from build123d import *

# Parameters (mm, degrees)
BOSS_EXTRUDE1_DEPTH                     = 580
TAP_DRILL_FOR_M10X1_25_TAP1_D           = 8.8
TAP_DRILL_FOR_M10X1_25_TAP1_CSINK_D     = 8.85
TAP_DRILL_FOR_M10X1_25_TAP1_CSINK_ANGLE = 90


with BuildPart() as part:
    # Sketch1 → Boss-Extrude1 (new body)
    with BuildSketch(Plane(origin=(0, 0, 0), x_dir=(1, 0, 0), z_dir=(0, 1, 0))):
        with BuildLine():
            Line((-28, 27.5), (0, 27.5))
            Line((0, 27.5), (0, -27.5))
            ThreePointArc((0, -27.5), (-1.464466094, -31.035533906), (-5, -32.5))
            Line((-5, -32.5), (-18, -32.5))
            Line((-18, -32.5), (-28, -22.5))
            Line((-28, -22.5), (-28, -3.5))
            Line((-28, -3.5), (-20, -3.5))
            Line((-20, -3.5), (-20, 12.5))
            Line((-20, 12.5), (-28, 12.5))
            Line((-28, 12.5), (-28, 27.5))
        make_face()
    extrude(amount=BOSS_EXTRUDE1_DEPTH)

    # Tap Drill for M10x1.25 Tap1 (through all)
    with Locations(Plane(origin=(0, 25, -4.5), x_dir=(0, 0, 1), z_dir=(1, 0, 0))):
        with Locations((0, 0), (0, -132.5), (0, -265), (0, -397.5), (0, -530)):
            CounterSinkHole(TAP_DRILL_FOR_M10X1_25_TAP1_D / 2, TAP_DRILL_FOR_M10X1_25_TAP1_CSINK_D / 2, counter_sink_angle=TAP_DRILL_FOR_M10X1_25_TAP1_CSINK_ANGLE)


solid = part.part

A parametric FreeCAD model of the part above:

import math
import FreeCAD as App
import Part
import Sketcher
from FreeCAD import Vector
Q = App.Units.Quantity

doc = App.newDocument("Part")
params = doc.addObject("Spreadsheet::Sheet", "Params")
for row, (alias, value) in enumerate([
    ("sketch1_radius", "5 mm"),
    ("sketch1_width", "28 mm"),
    ("sketch1_width2", "8 mm"),
    ("sketch1_width3", "13 mm"),
    ("sketch1_height", "15 mm"),
    ("pad1_length", "580 mm"),
    ("sketch2_diameter", "8.8 mm"),
    ("hole_diameter", "8.8 mm"),
    ("hole_csink_diameter", "8.85 mm"),
], start=1):
    params.set(f"A{row}", alias)
    params.set(f"B{row}", "=" + value)
    params.setAlias(f"B{row}", alias)

body = doc.addObject("PartDesign::Body", "Body")

# Sketch on XZ plane
sketch1 = body.newObject("Sketcher::SketchObject", "Sketch")
sketch1.AttachmentSupport = (doc.getObject("XZ_Plane"), [""])
sketch1.MapMode = "FlatFace"
sketch1.addGeometry(Part.LineSegment(Vector(0, -28, 0), Vector(-28, -28, 0)), False)
sketch1.addGeometry(Part.LineSegment(Vector(-28, -28, 0), Vector(-28, -12, 0)), False)
sketch1.addGeometry(Part.LineSegment(Vector(-28, -12, 0), Vector(-20, -12, 0)), False)
sketch1.addGeometry(Part.LineSegment(Vector(-20, -12, 0), Vector(-20, 4, 0)), False)
sketch1.addGeometry(Part.LineSegment(Vector(-20, 4, 0), Vector(-28, 4, 0)), False)
sketch1.addGeometry(Part.LineSegment(Vector(-28, 4, 0), Vector(-28, 22, 0)), False)
sketch1.addGeometry(Part.LineSegment(Vector(-28, 22, 0), Vector(-18, 32, 0)), False)
sketch1.addGeometry(Part.LineSegment(Vector(-18, 32, 0), Vector(-5, 32, 0)), False)
sketch1.addGeometry(Part.ArcOfCircle(Part.Circle(Vector(-5, 28, 0), Vector(0, 0, 1), 5), math.radians(0), math.radians(90)), False)
sketch1.addGeometry(Part.LineSegment(Vector(0, 28, 0), Vector(0, -28, 0)), False)
sketch1.addConstraint(Sketcher.Constraint("Coincident", 0, 2, 1, 1))
sketch1.addConstraint(Sketcher.Constraint("Coincident", 1, 2, 2, 1))
sketch1.addConstraint(Sketcher.Constraint("Coincident", 2, 2, 3, 1))
sketch1.addConstraint(Sketcher.Constraint("Coincident", 3, 2, 4, 1))
sketch1.addConstraint(Sketcher.Constraint("Coincident", 4, 2, 5, 1))
sketch1.addConstraint(Sketcher.Constraint("Coincident", 5, 2, 6, 1))
sketch1.addConstraint(Sketcher.Constraint("Coincident", 6, 2, 7, 1))
sketch1.addConstraint(Sketcher.Constraint("Tangent", 7, 2, 8, 2))
sketch1.addConstraint(Sketcher.Constraint("Tangent", 8, 1, 9, 1))
sketch1.addConstraint(Sketcher.Constraint("Coincident", 9, 2, 0, 1))
sketch1.addConstraint(Sketcher.Constraint("Horizontal", 0))
sketch1.addConstraint(Sketcher.Constraint("Vertical", 1))
sketch1.addConstraint(Sketcher.Constraint("Horizontal", 2))
sketch1.addConstraint(Sketcher.Constraint("Vertical", 3))
sketch1.addConstraint(Sketcher.Constraint("Horizontal", 4))
sketch1.addConstraint(Sketcher.Constraint("Vertical", 5))
sketch1.addConstraint(Sketcher.Constraint("Horizontal", 7))
sketch1.addConstraint(Sketcher.Constraint("Vertical", 9))
sketch1.addConstraint(Sketcher.Constraint("Symmetric", 8, 1, 9, 2, -1, 1))
sketch1.addConstraint(Sketcher.Constraint("Vertical", 1, 2, 4, 2))
sketch1.addConstraint(Sketcher.Constraint("Radius", 8, Q("5 mm")))
sketch1.addConstraint(Sketcher.Constraint("DistanceX", 0, 2, 0, 1, Q("28 mm")))
sketch1.addConstraint(Sketcher.Constraint("DistanceX", 2, 1, 2, 2, Q("8 mm")))
sketch1.addConstraint(Sketcher.Constraint("DistanceX", 7, 1, 7, 2, Q("13 mm")))
sketch1.addConstraint(Sketcher.Constraint("DistanceY", 1, 1, 1, 2, Q("15 mm")))
sketch1.addConstraint(Sketcher.Constraint("DistanceY", 3, 1, 3, 2, Q("16 mm")))
sketch1.addConstraint(Sketcher.Constraint("DistanceY", 5, 1, 5, 2, Q("19 mm")))
sketch1.addConstraint(Sketcher.Constraint("DistanceY", 9, 2, 9, 1, Q("55 mm")))
sketch1.setExpression("Constraints[20]", "Params.sketch1_radius")
sketch1.setExpression("Constraints[21]", "Params.sketch1_width")
sketch1.setExpression("Constraints[22]", "Params.sketch1_width2")
sketch1.setExpression("Constraints[23]", "Params.sketch1_width3")
sketch1.setExpression("Constraints[24]", "Params.sketch1_height")
pad1 = body.newObject("PartDesign::Pad", "Pad")
pad1.Profile = sketch1
pad1.setExpression("Length", "Params.pad1_length")
pad1.Reversed = True

# Sketch on YZ plane
sketch2 = body.newObject("Sketcher::SketchObject", "Sketch001")
sketch2.AttachmentSupport = (doc.getObject("YZ_Plane"), [""])
sketch2.MapMode = "FlatFace"
sketch2.addGeometry(Part.Circle(Vector(25, -4.5, 0), Vector(0, 0, 1), 4.4), False)
sketch2.addGeometry(Part.Circle(Vector(157.5, -4.5, 0), Vector(0, 0, 1), 4.4), False)
sketch2.addGeometry(Part.Circle(Vector(290, -4.5, 0), Vector(0, 0, 1), 4.4), False)
sketch2.addGeometry(Part.Circle(Vector(422.5, -4.5, 0), Vector(0, 0, 1), 4.4), False)
sketch2.addGeometry(Part.Circle(Vector(555, -4.5, 0), Vector(0, 0, 1), 4.4), False)
sketch2.addConstraint(Sketcher.Constraint("Equal", 0, 1))
sketch2.addConstraint(Sketcher.Constraint("Equal", 1, 2))
sketch2.addConstraint(Sketcher.Constraint("Equal", 2, 3))
sketch2.addConstraint(Sketcher.Constraint("Equal", 3, 4))
sketch2.addConstraint(Sketcher.Constraint("Horizontal", 0, 3, 1, 3))
sketch2.addConstraint(Sketcher.Constraint("Horizontal", 1, 3, 2, 3))
sketch2.addConstraint(Sketcher.Constraint("Horizontal", 2, 3, 3, 3))
sketch2.addConstraint(Sketcher.Constraint("Horizontal", 3, 3, 4, 3))
sketch2.addConstraint(Sketcher.Constraint("Diameter", 0, Q("8.8 mm")))
sketch2.addConstraint(Sketcher.Constraint("DistanceX", -1, 1, 0, 3, Q("25 mm")))
sketch2.addConstraint(Sketcher.Constraint("DistanceX", -1, 1, 2, 3, Q("290 mm")))
sketch2.addConstraint(Sketcher.Constraint("DistanceX", -1, 1, 4, 3, Q("555 mm")))
sketch2.addConstraint(Sketcher.Constraint("DistanceX", 1, 3, 3, 3, Q("265 mm")))
sketch2.addConstraint(Sketcher.Constraint("DistanceY", 0, 3, -1, 1, Q("4.5 mm")))
sketch2.addConstraint(Sketcher.Constraint("DistanceX", -1, 1, 1, 3, Q("157.5 mm")))
sketch2.setExpression("Constraints[8]", "Params.sketch2_diameter")
doc.recompute()
hole = body.newObject("PartDesign::Hole", "Hole")
hole.Profile = sketch2
hole.ThreadType = "None"
hole.setExpression("Diameter", "Params.hole_diameter")
hole.DepthType = "ThroughAll"
hole.HoleCutType = "Countersink"
hole.setExpression("HoleCutDiameter", "Params.hole_csink_diameter")
hole.HoleCutCountersinkAngle = 90

doc.recompute()
